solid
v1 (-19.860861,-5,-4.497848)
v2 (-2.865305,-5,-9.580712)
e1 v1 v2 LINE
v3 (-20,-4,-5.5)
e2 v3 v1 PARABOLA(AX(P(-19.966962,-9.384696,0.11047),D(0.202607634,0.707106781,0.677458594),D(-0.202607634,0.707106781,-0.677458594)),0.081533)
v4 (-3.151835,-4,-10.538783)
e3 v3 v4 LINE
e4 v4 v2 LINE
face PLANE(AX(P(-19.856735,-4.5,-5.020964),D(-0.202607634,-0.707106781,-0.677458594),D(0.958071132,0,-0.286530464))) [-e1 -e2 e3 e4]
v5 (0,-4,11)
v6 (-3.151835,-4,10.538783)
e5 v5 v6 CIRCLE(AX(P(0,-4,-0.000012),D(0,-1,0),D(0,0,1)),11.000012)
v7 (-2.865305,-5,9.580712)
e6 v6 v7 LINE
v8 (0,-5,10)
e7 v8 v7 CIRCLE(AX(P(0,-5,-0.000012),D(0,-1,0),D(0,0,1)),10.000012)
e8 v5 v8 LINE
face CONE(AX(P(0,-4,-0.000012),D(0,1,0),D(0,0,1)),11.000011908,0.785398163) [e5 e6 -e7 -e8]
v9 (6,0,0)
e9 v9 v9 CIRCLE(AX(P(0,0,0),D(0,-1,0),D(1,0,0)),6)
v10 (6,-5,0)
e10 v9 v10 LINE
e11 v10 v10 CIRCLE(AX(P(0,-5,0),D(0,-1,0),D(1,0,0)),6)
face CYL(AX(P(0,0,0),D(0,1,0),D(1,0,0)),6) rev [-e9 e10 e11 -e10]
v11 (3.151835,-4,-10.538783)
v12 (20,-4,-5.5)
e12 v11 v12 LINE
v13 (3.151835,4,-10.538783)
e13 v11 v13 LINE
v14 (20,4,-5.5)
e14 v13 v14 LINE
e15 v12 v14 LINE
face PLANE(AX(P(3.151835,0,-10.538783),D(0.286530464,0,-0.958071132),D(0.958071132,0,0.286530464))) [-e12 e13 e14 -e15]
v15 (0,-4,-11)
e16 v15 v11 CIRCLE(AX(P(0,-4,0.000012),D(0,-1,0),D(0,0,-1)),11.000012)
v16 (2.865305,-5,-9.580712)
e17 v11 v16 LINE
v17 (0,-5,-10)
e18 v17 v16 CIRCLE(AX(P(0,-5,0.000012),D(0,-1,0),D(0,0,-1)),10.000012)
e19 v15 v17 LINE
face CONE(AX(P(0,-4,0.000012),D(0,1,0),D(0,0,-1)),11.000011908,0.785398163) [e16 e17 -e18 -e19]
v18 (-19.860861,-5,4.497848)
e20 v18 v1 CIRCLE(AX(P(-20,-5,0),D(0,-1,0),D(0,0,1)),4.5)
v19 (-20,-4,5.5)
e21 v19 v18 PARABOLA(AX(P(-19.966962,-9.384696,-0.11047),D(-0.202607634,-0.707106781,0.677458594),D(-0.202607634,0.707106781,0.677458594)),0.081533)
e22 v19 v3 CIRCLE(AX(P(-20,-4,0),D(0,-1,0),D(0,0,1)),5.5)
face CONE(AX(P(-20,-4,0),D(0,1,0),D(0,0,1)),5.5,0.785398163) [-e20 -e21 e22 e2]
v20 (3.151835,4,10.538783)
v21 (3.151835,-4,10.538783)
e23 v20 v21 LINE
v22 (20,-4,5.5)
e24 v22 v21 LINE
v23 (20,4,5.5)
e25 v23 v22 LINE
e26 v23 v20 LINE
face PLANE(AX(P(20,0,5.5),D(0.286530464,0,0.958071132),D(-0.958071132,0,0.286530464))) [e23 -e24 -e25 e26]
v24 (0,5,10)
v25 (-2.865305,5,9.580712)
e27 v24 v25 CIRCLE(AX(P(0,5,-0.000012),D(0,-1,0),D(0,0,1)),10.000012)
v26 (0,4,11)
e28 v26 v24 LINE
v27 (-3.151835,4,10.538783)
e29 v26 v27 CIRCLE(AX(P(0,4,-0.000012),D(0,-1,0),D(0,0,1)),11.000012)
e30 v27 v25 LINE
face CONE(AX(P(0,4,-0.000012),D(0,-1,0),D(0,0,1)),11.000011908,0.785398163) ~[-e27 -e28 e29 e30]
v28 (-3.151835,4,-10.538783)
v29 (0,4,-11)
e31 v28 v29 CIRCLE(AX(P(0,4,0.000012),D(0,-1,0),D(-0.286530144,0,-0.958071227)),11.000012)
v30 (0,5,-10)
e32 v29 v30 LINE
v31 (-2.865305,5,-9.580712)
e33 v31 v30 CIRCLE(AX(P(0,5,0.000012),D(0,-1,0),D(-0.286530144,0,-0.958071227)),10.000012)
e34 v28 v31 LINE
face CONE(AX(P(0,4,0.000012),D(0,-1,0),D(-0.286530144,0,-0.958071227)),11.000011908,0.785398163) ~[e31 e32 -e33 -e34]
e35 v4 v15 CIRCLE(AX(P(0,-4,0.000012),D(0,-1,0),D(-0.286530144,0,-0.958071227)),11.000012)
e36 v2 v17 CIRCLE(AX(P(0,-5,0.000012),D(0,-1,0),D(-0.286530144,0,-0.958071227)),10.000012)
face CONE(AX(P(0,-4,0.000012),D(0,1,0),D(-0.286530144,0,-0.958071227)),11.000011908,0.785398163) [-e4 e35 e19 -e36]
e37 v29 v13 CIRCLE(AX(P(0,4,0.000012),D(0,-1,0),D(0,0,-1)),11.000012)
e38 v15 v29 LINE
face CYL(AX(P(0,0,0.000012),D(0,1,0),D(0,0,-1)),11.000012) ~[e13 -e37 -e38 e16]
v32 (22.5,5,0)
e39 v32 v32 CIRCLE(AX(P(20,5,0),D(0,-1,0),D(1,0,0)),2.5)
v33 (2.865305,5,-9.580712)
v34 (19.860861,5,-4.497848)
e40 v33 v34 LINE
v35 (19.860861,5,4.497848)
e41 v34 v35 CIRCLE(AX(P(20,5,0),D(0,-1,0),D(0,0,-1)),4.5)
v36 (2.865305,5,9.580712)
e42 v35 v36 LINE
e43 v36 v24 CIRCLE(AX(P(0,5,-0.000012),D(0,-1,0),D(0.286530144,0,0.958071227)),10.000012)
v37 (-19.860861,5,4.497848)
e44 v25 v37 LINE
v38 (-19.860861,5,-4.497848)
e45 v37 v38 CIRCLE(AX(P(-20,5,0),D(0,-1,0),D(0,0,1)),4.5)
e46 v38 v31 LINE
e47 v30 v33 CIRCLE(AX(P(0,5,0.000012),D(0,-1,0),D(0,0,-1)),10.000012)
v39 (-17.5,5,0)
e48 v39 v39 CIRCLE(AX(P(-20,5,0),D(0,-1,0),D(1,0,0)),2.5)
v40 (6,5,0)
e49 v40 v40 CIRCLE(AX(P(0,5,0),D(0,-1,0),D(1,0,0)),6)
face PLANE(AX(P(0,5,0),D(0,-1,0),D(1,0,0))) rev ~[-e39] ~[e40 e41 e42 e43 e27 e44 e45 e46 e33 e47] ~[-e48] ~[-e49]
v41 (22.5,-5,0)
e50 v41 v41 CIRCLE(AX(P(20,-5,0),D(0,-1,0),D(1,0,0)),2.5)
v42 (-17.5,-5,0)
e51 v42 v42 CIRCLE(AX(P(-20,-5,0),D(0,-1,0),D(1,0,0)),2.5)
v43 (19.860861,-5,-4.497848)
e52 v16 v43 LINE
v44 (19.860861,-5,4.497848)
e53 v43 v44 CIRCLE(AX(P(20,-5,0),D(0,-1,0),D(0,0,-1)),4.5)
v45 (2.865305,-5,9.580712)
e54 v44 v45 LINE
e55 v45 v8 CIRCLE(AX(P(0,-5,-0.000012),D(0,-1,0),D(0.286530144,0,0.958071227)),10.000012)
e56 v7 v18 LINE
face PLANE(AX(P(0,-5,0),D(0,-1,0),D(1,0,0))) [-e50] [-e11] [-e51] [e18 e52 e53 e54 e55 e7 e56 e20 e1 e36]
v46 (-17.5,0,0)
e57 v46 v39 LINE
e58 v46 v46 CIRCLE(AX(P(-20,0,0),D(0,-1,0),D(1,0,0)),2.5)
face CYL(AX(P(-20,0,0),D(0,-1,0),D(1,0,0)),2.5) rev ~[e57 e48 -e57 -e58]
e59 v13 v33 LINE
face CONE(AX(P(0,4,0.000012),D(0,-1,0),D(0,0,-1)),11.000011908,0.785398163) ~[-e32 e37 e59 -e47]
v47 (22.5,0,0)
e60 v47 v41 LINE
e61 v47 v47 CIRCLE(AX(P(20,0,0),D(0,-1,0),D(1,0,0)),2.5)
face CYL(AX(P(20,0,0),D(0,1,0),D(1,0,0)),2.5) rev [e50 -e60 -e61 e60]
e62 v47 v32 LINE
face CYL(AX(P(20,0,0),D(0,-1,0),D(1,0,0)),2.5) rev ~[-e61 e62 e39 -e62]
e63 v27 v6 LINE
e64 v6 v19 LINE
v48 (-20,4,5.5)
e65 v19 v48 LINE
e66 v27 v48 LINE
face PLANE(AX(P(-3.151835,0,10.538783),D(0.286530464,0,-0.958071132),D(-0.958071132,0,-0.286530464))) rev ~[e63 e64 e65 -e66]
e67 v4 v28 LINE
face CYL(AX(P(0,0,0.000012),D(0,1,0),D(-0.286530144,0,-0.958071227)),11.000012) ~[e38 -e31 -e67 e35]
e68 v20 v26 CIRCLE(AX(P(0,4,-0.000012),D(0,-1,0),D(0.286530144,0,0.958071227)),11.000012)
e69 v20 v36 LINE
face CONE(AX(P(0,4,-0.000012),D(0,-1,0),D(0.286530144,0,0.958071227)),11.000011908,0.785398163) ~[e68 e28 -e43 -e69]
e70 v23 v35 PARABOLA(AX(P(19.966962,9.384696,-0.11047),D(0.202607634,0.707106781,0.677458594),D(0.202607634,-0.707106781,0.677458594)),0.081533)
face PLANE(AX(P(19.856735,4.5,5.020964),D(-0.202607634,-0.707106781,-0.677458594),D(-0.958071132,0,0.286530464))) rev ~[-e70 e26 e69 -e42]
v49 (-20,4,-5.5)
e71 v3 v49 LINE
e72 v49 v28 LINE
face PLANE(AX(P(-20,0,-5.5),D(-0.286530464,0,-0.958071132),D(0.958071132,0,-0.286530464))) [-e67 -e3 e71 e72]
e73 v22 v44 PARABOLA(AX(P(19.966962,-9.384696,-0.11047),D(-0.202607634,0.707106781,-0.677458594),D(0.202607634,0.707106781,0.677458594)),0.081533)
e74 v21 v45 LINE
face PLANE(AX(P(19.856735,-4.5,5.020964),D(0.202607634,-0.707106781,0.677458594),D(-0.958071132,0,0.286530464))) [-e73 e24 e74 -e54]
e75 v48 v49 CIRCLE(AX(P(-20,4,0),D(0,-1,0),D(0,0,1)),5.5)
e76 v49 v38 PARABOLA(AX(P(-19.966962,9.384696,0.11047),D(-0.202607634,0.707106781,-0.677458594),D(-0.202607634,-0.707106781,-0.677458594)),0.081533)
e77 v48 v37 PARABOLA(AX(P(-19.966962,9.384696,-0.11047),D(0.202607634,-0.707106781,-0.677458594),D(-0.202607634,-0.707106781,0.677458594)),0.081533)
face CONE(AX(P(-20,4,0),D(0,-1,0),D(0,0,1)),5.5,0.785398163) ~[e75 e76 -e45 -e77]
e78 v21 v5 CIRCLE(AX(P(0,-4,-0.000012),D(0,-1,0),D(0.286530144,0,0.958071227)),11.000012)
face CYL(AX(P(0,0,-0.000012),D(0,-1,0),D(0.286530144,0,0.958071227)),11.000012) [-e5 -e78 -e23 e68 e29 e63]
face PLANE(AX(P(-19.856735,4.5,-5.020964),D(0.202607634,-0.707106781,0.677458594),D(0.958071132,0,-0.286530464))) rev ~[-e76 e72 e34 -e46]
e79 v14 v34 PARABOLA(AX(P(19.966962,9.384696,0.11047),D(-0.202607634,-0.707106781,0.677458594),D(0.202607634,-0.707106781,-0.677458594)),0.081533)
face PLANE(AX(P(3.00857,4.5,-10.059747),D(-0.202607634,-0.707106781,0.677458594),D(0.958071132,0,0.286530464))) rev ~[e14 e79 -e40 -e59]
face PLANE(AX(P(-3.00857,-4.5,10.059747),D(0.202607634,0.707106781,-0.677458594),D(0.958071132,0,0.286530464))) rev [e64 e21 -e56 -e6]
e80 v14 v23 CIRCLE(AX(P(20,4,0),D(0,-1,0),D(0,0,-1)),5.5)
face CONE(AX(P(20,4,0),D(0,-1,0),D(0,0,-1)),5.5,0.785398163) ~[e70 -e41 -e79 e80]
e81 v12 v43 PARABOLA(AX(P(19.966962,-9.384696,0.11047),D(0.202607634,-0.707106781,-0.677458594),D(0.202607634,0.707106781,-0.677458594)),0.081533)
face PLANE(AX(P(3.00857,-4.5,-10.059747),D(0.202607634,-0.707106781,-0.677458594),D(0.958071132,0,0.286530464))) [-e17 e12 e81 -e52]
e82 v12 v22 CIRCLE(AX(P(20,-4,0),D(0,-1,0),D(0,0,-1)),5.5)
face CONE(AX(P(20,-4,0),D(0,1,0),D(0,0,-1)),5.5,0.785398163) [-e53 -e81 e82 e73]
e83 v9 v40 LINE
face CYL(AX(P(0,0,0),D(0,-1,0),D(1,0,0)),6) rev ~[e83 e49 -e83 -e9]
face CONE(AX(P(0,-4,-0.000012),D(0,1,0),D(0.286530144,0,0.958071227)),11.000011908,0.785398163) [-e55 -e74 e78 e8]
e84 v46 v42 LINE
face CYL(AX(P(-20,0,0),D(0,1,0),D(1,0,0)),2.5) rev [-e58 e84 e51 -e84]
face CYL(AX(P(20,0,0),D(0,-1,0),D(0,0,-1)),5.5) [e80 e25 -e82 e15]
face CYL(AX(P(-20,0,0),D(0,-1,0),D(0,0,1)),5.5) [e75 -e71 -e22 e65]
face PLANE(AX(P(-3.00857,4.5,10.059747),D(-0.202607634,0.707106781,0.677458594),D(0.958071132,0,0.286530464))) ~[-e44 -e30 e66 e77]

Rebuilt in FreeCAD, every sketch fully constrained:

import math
import FreeCAD as App
import Part
import Sketcher
from FreeCAD import Vector
Q = App.Units.Quantity


def edges_at(feature, points):
    """Names of the edges that pass closest to the given points."""
    edges = feature.Shape.Edges
    near = lambda p: min(range(len(edges)), key=lambda i: edges[i].distToShape(Part.Vertex(*p))[0])
    return sorted({f"Edge{near(p) + 1}" for p in points})

doc = App.newDocument("Part")
body = doc.addObject("PartDesign::Body", "Body")

# Sketch on XZ plane
sketch1 = body.newObject("Sketcher::SketchObject", "Sketch")
sketch1.AttachmentSupport = (doc.getObject("XZ_Plane"), [""])
sketch1.MapMode = "FlatFace"
sketch1.addGeometry([
    Part.ArcOfCircle(Part.Circle(Vector(20, 0, 0), Vector(0, 0, 1), 5.5), math.radians(-90), math.radians(90)),  # 0
    Part.LineSegment(Vector(20, 5.5, 0), Vector(3.151835, 10.538783, 0)),  # 1
    Part.ArcOfCircle(Part.Circle(Vector(0, -0.000012, 0), Vector(0, 0, 1), 11.000012), math.radians(73.349666), math.radians(90)),  # 2
    Part.ArcOfCircle(Part.Circle(Vector(0, -0.000012, 0), Vector(0, 0, 1), 11.000012), math.radians(90), math.radians(106.650334)),  # 3
    Part.LineSegment(Vector(-3.151835, 10.538783, 0), Vector(-20, 5.5, 0)),  # 4
    Part.ArcOfCircle(Part.Circle(Vector(-20, 0, 0), Vector(0, 0, 1), 5.5), math.radians(90), math.radians(270)),  # 5
    Part.LineSegment(Vector(-20, -5.5, 0), Vector(-3.151835, -10.538783, 0)),  # 6
    Part.ArcOfCircle(Part.Circle(Vector(0, 0.000012, 0), Vector(0, 0, 1), 11.000012), math.radians(-106.650334), math.radians(-90)),  # 7
    Part.ArcOfCircle(Part.Circle(Vector(0, 0.000012, 0), Vector(0, 0, 1), 11.000012), math.radians(-90), math.radians(-73.349666)),  # 8
    Part.LineSegment(Vector(3.151835, -10.538783, 0), Vector(20, -5.5, 0)),  # 9
    Part.Circle(Vector(-20, 0, 0), Vector(0, 0, 1), 2.5),  # 10
    Part.Circle(Vector(0, 0, 0), Vector(0, 0, 1), 6),  # 11
    Part.Circle(Vector(20, 0, 0), Vector(0, 0, 1), 2.5),  # 12
], False)
sketch1.addConstraint([
    Sketcher.Constraint("Coincident", 0, 2, 1, 1),
    Sketcher.Constraint("Tangent", 1, 2, 2, 1),
    Sketcher.Constraint("Tangent", 2, 2, 3, 1),
    Sketcher.Constraint("Tangent", 3, 2, 4, 1),
    Sketcher.Constraint("Coincident", 4, 2, 5, 1),
    Sketcher.Constraint("Coincident", 5, 2, 6, 1),
    Sketcher.Constraint("Tangent", 6, 2, 7, 1),
    Sketcher.Constraint("Tangent", 7, 2, 8, 1),
    Sketcher.Constraint("Tangent", 8, 2, 9, 1),
    Sketcher.Constraint("Coincident", 9, 2, 0, 1),
    Sketcher.Constraint("Coincident", 11, 3, -1, 1),
    Sketcher.Constraint("Coincident", 10, 3, 5, 3),
    Sketcher.Constraint("Coincident", 12, 3, 0, 3),
    Sketcher.Constraint("Equal", 2, 3),
    Sketcher.Constraint("Equal", 0, 5),
    Sketcher.Constraint("Equal", 3, 7),
    Sketcher.Constraint("Equal", 7, 8),
    Sketcher.Constraint("Equal", 10, 12),
    Sketcher.Constraint("Symmetric", 0, 3, 5, 3, -1, 1),
    Sketcher.Constraint("Symmetric", 2, 3, 7, 3, -1, 1),
    Sketcher.Constraint("Symmetric", 1, 2, 3, 2, -2),
    Sketcher.Constraint("Symmetric", 5, 2, 9, 2, -2),
    Sketcher.Constraint("PointOnObject", 2, 2, -2),
    Sketcher.Constraint("PointOnObject", 7, 2, -2),
    Sketcher.Constraint("Parallel", 1, 6),
    Sketcher.Constraint("Vertical", 12, 3, 0, 2),
    Sketcher.Constraint("Diameter", 10, Q("5 mm")),
    Sketcher.Constraint("Diameter", 11, Q("12 mm")),
    Sketcher.Constraint("Radius", 0, Q("5.5 mm")),
    Sketcher.Constraint("DistanceX", -1, 1, 0, 3, Q("20 mm")),
    Sketcher.Constraint("DistanceY", -1, 1, 2, 2, Q("11 mm")),
    Sketcher.Constraint("Radius", 2, Q("11.000012 mm")),
])
pad1 = body.newObject("PartDesign::Pad", "Pad")
pad1.Profile = sketch1
pad1.Length = 10
pad1.Midplane = True
doc.recompute()

chamfer = body.newObject("PartDesign::Chamfer", "Chamfer")
chamfer.Base = (pad1, edges_at(pad1, [
    (-11.576, -5, 8.019),
    (25.5, -5, 0),
    (11.576, -5, 8.019),
    (1.593, -5, 10.884),
    (-1.593, -5, 10.884),
    (11.576, -5, -8.019),
    (-25.5, -5, 0),
    (-25.5, 5, 0),
    (25.5, 5, 0),
    (11.576, 5, 8.019),
    (-11.576, 5, 8.019),
    (-11.576, 5, -8.019),
    (11.576, 5, -8.019),
]))
chamfer.Size = 1

doc.recompute()
